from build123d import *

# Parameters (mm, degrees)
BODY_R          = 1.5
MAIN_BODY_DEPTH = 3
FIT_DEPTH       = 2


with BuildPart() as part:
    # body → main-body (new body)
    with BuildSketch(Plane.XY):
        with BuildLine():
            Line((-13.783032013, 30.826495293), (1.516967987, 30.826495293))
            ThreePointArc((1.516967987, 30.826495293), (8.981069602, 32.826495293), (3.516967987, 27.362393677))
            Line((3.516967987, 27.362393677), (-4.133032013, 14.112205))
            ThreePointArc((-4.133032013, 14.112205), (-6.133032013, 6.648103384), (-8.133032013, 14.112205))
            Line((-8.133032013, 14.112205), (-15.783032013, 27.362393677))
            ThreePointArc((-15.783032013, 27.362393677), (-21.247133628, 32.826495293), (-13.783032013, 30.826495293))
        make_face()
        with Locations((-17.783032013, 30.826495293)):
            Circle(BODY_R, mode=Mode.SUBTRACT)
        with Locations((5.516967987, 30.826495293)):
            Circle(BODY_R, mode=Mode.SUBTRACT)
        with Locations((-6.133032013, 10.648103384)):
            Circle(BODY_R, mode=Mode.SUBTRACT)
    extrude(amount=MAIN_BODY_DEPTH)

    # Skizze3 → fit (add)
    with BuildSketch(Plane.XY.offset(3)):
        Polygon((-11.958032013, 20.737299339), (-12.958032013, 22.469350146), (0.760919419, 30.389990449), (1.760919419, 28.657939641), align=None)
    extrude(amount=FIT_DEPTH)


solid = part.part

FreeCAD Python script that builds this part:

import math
import FreeCAD as App
import Part
import Sketcher
from FreeCAD import Vector
Q = App.Units.Quantity

doc = App.newDocument("Part")
body = doc.addObject("PartDesign::Body", "Body")

sketch1 = body.newObject("Sketcher::SketchObject", "Sketch")
sketch1.AttachmentSupport = (doc.getObject("XY_Plane"), [""])
sketch1.MapMode = "FlatFace"
sketch1.addGeometry([
    Part.LineSegment(Vector(1.5, 30.8, 0), Vector(-13.8, 30.8, 0)),
    Part.ArcOfCircle(Part.Circle(Vector(-17.8, 30.8, 0), Vector(0, 0, 1), 4), math.radians(0), math.radians(300)),
    Part.LineSegment(Vector(-15.8, 27.4, 0), Vector(-8.1, 14.1, 0)),
    Part.ArcOfCircle(Part.Circle(Vector(-6.1, 10.6, 0), Vector(0, 0, 1), 4), math.radians(120), math.radians(420)),
    Part.LineSegment(Vector(-4.1, 14.1, 0), Vector(3.5, 27.4, 0)),
    Part.ArcOfCircle(Part.Circle(Vector(5.5, 30.8, 0), Vector(0, 0, 1), 4), math.radians(-120), math.radians(180)),
    Part.Circle(Vector(-6.1, 10.6, 0), Vector(0, 0, 1), 1.5),
    Part.Circle(Vector(5.5, 30.8, 0), Vector(0, 0, 1), 1.5),
    Part.Circle(Vector(-17.8, 30.8, 0), Vector(0, 0, 1), 1.5),
], False)
sketch1.addConstraint([
    Sketcher.Constraint("Coincident", 0, 2, 1, 1),
    Sketcher.Constraint("Coincident", 1, 2, 2, 1),
    Sketcher.Constraint("Coincident", 2, 2, 3, 1),
    Sketcher.Constraint("Coincident", 3, 2, 4, 1),
    Sketcher.Constraint("Coincident", 4, 2, 5, 1),
    Sketcher.Constraint("Coincident", 5, 2, 0, 1),
    Sketcher.Constraint("Horizontal", 0),
    Sketcher.Constraint("Coincident", 6, 3, 3, 3),
    Sketcher.Constraint("Coincident", 7, 3, 5, 3),
    Sketcher.Constraint("Coincident", 8, 3, 1, 3),
    Sketcher.Constraint("Equal", 1, 3),
    Sketcher.Constraint("Equal", 3, 5),
    Sketcher.Constraint("Equal", 6, 7),
    Sketcher.Constraint("Equal", 7, 8),
    Sketcher.Constraint("Horizontal", 1, 3, 5, 3),
    Sketcher.Constraint("Horizontal", 8, 3, 0, 2),
    Sketcher.Constraint("Horizontal", 2, 2, 3, 2),
    Sketcher.Constraint("Horizontal", 1, 2, 4, 2),
    Sketcher.Constraint("Equal", 2, 4),
    Sketcher.Constraint("Diameter", 6, Q("3 mm")),
    Sketcher.Constraint("Radius", 1, Q("4 mm")),
    Sketcher.Constraint("Angle", 2, Q("-60 deg")),
    Sketcher.Constraint("DistanceX", 0, 2, 0, 1, Q("15.3 mm")),
    Sketcher.Constraint("DistanceX", 1, 3, 1, 2, Q("2 mm")),
    Sketcher.Constraint("DistanceX", 2, 2, 3, 3, Q("2 mm")),
    Sketcher.Constraint("DistanceX", 1, 3, -1, 1, Q("17.783032 mm")),
    Sketcher.Constraint("DistanceY", -1, 1, 1, 3, Q("30.826495 mm")),
])
pad1 = body.newObject("PartDesign::Pad", "Pad")
pad1.Profile = sketch1
pad1.Length = 3

sketch2 = body.newObject("Sketcher::SketchObject", "Sketch001")
sketch2.AttachmentSupport = (doc.getObject("XY_Plane"), [""])
sketch2.MapMode = "FlatFace"
sketch2.AttachmentOffset = App.Placement(Vector(0, 0, 3), App.Rotation())
sketch2.addGeometry([
    Part.LineSegment(Vector(-13, 22.5, 0), Vector(-12, 20.7, 0)),
    Part.LineSegment(Vector(-12, 20.7, 0), Vector(1.8, 28.7, 0)),
    Part.LineSegment(Vector(1.8, 28.7, 0), Vector(0.8, 30.4, 0)),
    Part.LineSegment(Vector(0.8, 30.4, 0), Vector(-13, 22.5, 0)),
], False)
sketch2.addConstraint([
    Sketcher.Constraint("Coincident", 0, 2, 1, 1),
    Sketcher.Constraint("Coincident", 1, 2, 2, 1),
    Sketcher.Constraint("Coincident", 2, 2, 3, 1),
    Sketcher.Constraint("Coincident", 3, 2, 0, 1),
    Sketcher.Constraint("Perpendicular", 0, 1),
    Sketcher.Constraint("Perpendicular", 1, 2),
    Sketcher.Constraint("Perpendicular", 2, 3),
    Sketcher.Constraint("Angle", 0, Q("-60 deg")),
    Sketcher.Constraint("Distance", 0, Q("2 mm")),
    Sketcher.Constraint("DistanceY", -1, 1, 0, 2, Q("20.737299 mm")),
    Sketcher.Constraint("Distance", 1, Q("15.841281 mm")),
    Sketcher.Constraint("DistanceX", -1, 1, 1, 2, Q("1.760919 mm")),
])
pad2 = body.newObject("PartDesign::Pad", "Pad001")
pad2.Profile = sketch2
pad2.Length = 2

doc.recompute()
